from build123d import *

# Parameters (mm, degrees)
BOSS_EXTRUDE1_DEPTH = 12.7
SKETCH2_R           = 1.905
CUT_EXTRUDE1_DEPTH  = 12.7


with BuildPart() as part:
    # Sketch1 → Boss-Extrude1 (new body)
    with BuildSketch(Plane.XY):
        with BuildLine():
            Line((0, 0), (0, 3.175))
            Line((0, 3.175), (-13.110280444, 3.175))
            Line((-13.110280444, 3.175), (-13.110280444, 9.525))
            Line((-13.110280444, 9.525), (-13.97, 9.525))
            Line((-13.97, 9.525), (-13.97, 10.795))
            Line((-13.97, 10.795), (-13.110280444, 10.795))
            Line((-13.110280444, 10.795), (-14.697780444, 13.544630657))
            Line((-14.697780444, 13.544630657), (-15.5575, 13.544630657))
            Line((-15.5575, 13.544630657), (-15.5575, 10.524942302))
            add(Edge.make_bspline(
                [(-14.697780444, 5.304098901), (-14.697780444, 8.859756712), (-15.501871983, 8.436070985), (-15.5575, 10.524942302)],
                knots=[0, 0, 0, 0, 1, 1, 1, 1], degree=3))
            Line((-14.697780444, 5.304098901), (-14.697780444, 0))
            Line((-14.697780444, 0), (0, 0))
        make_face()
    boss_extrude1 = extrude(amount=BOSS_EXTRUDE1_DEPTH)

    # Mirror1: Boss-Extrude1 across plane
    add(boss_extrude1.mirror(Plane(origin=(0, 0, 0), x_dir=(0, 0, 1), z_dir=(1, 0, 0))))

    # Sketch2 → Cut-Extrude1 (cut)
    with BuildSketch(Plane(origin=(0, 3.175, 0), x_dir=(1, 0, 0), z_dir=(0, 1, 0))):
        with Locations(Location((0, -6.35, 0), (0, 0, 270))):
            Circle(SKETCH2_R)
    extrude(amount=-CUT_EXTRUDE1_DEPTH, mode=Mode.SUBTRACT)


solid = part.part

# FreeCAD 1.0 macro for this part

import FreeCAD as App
import Part
import Sketcher

V = App.Vector
Q = App.Units.Quantity

doc = App.newDocument("Part")
body = doc.addObject("PartDesign::Body", "Body")

# Sketch on XY plane
sketch1 = body.newObject("Sketcher::SketchObject", "Sketch")
sketch1.AttachmentSupport = (doc.getObject("XY_Plane"), [""])
sketch1.MapMode = "FlatFace"
sketch1.addGeometry(Part.LineSegment(V(0, 0, 0), V(0, 3.175, 0)), False)
sketch1.addGeometry(Part.LineSegment(V(0, 3.175, 0), V(-13.11028, 3.175, 0)), False)
sketch1.addGeometry(Part.LineSegment(V(-13.11028, 3.175, 0), V(-13.11028, 9.525, 0)), False)
sketch1.addGeometry(Part.LineSegment(V(-13.11028, 9.525, 0), V(-13.97, 9.525, 0)), False)
sketch1.addGeometry(Part.LineSegment(V(-13.97, 9.525, 0), V(-13.97, 10.795, 0)), False)
sketch1.addGeometry(Part.LineSegment(V(-13.97, 10.795, 0), V(-13.11028, 10.795, 0)), False)
sketch1.addGeometry(Part.LineSegment(V(-13.11028, 10.795, 0), V(-14.69778, 13.544631, 0)), False)
sketch1.addGeometry(Part.LineSegment(V(-14.69778, 13.544631, 0), V(-15.5575, 13.544631, 0)), False)
sketch1.addGeometry(Part.LineSegment(V(-15.5575, 13.544631, 0), V(-15.5575, 10.524942, 0)), False)
sketch1.addGeometry(Part.BSplineCurve([V(-14.69778, 5.304099, 0), V(-14.69778, 8.859757, 0), V(-15.501872, 8.436071, 0), V(-15.5575, 10.524942, 0)], [4, 4], [0, 1], False, 3, [1, 1, 1, 1], False), False)
sketch1.addGeometry(Part.LineSegment(V(-14.69778, 5.304099, 0), V(-14.69778, 0, 0)), False)
sketch1.addGeometry(Part.LineSegment(V(-14.69778, 0, 0), V(0, 0, 0)), False)
sketch1.addConstraint(Sketcher.Constraint("Block", 9))
sketch1.addConstraint(Sketcher.Constraint("Coincident", 0, 2, 1, 1))
sketch1.addConstraint(Sketcher.Constraint("Coincident", 1, 2, 2, 1))
sketch1.addConstraint(Sketcher.Constraint("Coincident", 2, 2, 3, 1))
sketch1.addConstraint(Sketcher.Constraint("Coincident", 3, 2, 4, 1))
sketch1.addConstraint(Sketcher.Constraint("Coincident", 4, 2, 5, 1))
sketch1.addConstraint(Sketcher.Constraint("Coincident", 5, 2, 6, 1))
sketch1.addConstraint(Sketcher.Constraint("Coincident", 6, 2, 7, 1))
sketch1.addConstraint(Sketcher.Constraint("Coincident", 7, 2, 8, 1))
sketch1.addConstraint(Sketcher.Constraint("Coincident", 8, 2, 9, 2))
sketch1.addConstraint(Sketcher.Constraint("Coincident", 9, 1, 10, 1))
sketch1.addConstraint(Sketcher.Constraint("Coincident", 10, 2, 11, 1))
sketch1.addConstraint(Sketcher.Constraint("Coincident", 11, 2, 0, 1))
sketch1.addConstraint(Sketcher.Constraint("Vertical", 0))
sketch1.addConstraint(Sketcher.Constraint("Horizontal", 1))
sketch1.addConstraint(Sketcher.Constraint("Vertical", 2))
sketch1.addConstraint(Sketcher.Constraint("Horizontal", 3))
sketch1.addConstraint(Sketcher.Constraint("Vertical", 4))
sketch1.addConstraint(Sketcher.Constraint("Horizontal", 5))
sketch1.addConstraint(Sketcher.Constraint("Horizontal", 7))
sketch1.addConstraint(Sketcher.Constraint("Vertical", 8))
sketch1.addConstraint(Sketcher.Constraint("Vertical", 10))
sketch1.addConstraint(Sketcher.Constraint("Horizontal", 11))
sketch1.addConstraint(Sketcher.Constraint("Coincident", 11, 2, -1, 1))
sketch1.addConstraint(Sketcher.Constraint("Vertical", 2, 2, 5, 2))
sketch1.addConstraint(Sketcher.Constraint("Vertical", 6, 2, 10, 2))
sketch1.addConstraint(Sketcher.Constraint("Equal", 5, 7))
sketch1.addConstraint(Sketcher.Constraint("Angle", 6, Q("120 deg")))
sketch1.addConstraint(Sketcher.Constraint("DistanceY", 2, 1, 2, 2, Q("0.25 in")))
sketch1.addConstraint(Sketcher.Constraint("DistanceY", 4, 1, 4, 2, Q("0.05 in")))
sketch1.addConstraint(Sketcher.Constraint("DistanceY", 0, 1, 0, 2, Q("0.125 in")))
sketch1.addConstraint(Sketcher.Constraint("DistanceX", 3, 2, -1, 1, Q("0.55 in")))
pad1 = body.newObject("PartDesign::Pad", "Pad")
pad1.Profile = sketch1
pad1.Length = Q("0.5 in")
doc.recompute()

mirrored = body.newObject("PartDesign::Mirrored", "Mirrored")
mirrored.Originals = [pad1]
mirrored.MirrorPlane = (doc.getObject("YZ_Plane"), [""])
body.Tip = mirrored

# Sketch on XZ plane
sketch2 = body.newObject("Sketcher::SketchObject", "Sketch001")
sketch2.AttachmentSupport = (doc.getObject("XZ_Plane"), [""])
sketch2.MapMode = "FlatFace"
sketch2.AttachmentOffset = App.Placement(V(0, 0, -0.125 * 25.4), App.Rotation())
sketch2.addGeometry(Part.Circle(V(0, 6.3, 0), V(0, 0, 1), 1.9), False)
sketch2.addConstraint(Sketcher.Constraint("PointOnObject", 0, 3, -2))
sketch2.addConstraint(Sketcher.Constraint("Diameter", 0, Q("0.15 in")))
sketch2.addConstraint(Sketcher.Constraint("DistanceY", -1, 1, 0, 3, Q("0.25 in")))
pocket1 = body.newObject("PartDesign::Pocket", "Pocket")
pocket1.Profile = sketch2
pocket1.Length = Q("0.5 in")
pocket1.Reversed = True

doc.recompute()
